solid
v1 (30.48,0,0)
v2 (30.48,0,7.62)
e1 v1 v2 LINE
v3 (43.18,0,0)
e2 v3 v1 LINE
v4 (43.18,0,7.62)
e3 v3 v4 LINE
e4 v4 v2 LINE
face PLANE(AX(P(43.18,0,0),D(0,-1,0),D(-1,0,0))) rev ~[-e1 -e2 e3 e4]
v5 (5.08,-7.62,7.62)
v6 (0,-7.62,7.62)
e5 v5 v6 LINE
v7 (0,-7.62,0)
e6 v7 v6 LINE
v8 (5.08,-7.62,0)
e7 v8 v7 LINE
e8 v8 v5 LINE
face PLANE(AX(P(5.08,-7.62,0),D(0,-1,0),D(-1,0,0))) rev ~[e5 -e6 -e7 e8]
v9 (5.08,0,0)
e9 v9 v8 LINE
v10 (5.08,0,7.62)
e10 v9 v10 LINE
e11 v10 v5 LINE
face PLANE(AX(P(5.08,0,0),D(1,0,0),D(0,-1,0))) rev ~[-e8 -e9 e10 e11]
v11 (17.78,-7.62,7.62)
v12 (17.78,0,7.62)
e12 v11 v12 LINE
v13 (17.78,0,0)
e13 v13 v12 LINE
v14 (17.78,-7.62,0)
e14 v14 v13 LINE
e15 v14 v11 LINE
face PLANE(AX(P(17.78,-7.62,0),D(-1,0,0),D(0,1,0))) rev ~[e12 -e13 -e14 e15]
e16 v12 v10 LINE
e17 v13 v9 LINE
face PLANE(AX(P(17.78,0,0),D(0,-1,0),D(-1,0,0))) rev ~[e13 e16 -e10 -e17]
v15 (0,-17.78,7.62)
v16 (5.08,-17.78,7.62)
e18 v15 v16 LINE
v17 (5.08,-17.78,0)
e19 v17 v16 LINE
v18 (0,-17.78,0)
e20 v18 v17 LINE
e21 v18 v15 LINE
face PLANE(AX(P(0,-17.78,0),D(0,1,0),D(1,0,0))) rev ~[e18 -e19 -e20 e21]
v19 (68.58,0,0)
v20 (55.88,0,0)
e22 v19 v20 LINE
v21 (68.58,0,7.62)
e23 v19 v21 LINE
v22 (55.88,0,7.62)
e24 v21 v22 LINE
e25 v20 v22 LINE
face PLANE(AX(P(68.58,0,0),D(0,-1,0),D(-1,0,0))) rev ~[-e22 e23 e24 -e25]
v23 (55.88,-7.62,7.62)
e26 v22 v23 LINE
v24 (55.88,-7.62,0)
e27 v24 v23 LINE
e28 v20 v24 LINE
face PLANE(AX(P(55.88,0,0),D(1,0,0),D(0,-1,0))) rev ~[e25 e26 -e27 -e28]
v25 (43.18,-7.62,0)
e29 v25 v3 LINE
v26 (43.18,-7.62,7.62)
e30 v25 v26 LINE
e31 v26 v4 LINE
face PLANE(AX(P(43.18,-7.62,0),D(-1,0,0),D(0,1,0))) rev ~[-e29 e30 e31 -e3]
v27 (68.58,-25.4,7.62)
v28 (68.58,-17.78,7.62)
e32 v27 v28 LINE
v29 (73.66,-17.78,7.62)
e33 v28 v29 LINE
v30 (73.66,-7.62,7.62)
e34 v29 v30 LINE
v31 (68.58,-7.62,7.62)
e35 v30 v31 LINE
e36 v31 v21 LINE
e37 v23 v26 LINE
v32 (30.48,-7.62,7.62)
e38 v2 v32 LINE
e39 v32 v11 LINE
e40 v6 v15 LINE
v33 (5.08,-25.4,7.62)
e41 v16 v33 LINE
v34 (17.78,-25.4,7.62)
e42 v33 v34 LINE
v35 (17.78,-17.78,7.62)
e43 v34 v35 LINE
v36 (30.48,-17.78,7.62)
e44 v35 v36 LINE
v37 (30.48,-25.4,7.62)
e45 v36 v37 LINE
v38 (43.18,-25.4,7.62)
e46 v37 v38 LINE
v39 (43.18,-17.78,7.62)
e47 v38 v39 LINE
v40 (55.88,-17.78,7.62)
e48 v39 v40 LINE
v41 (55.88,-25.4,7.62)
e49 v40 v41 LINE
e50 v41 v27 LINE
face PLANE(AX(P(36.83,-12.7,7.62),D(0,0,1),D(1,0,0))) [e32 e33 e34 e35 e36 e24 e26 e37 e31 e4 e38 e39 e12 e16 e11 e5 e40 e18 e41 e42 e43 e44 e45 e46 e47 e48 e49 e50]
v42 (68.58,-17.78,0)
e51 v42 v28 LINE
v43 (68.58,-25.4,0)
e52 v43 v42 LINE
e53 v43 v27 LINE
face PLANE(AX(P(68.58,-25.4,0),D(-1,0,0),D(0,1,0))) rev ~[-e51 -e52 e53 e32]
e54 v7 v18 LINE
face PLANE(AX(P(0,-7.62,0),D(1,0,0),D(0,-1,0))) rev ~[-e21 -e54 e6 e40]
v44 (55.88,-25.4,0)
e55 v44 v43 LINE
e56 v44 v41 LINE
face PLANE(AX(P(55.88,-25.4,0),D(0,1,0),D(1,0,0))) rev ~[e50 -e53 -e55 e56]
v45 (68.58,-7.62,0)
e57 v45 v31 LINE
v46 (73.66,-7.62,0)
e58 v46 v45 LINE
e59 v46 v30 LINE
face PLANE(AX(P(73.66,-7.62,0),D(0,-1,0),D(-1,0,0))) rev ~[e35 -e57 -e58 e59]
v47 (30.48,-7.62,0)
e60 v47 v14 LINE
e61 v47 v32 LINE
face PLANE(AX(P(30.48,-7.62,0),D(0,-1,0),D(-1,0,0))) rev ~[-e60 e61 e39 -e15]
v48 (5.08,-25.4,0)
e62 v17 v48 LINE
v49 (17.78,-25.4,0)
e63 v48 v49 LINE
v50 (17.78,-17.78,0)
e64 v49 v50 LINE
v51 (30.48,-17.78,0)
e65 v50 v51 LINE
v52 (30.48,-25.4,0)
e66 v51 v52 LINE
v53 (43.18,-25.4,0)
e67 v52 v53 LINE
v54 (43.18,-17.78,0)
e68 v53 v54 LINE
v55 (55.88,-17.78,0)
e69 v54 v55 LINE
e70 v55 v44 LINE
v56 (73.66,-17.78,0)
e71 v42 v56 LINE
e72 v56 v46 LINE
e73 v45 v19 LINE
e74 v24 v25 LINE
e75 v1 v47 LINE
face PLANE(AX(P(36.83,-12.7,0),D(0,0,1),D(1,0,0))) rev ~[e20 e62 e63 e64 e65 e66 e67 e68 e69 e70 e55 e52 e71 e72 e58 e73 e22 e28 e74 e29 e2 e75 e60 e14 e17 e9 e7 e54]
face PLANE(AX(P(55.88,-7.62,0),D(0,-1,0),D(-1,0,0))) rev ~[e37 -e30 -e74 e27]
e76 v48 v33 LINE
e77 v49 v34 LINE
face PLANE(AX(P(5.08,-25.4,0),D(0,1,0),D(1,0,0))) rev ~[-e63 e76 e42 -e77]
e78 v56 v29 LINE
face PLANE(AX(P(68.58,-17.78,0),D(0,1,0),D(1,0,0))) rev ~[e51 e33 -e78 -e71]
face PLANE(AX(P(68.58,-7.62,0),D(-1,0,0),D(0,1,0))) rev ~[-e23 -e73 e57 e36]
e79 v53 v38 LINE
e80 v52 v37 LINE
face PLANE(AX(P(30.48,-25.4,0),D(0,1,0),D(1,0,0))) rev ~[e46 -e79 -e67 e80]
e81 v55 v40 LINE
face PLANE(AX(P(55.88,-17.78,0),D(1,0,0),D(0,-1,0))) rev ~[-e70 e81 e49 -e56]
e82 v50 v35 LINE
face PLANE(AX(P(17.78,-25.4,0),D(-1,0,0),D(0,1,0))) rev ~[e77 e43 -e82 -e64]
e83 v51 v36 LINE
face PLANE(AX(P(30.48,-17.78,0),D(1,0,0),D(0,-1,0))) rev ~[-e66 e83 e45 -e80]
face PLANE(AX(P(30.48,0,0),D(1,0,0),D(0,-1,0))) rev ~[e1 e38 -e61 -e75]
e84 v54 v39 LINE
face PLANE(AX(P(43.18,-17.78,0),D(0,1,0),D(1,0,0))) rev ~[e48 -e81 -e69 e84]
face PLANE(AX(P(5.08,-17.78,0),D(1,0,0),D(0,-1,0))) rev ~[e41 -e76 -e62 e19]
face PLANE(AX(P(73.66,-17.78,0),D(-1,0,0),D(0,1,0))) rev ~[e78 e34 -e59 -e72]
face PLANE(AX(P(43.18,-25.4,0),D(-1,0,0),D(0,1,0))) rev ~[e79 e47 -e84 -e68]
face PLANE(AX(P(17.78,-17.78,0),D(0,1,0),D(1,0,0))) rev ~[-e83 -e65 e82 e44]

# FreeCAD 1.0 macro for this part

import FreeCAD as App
import Part
import Sketcher
from FreeCAD import Vector
Q = App.Units.Quantity

doc = App.newDocument("Part")
params = doc.addObject("Spreadsheet::Sheet", "Params")
for row, (alias, value) in enumerate([
    ("sketch1_width", "0.5 in"),
    ("sketch1_width2", "0.2 in"),
    ("sketch1_height", "0.3 in"),
    ("sketch1_height2", "0.4 in"),
    ("pad1_length", "0.3 in"),
], start=1):
    params.set(f"A{row}", alias)
    params.set(f"B{row}", "=" + value)
    params.setAlias(f"B{row}", alias)

body = doc.addObject("PartDesign::Body", "Body")

# Sketch on XY plane
sketch1 = body.newObject("Sketcher::SketchObject", "Sketch")
sketch1.AttachmentSupport = (doc.getObject("XY_Plane"), [""])
sketch1.MapMode = "FlatFace"
sketch1.addGeometry([
    Part.LineSegment(Vector(18, 0, 0), Vector(5, 0, 0)),  # 0
    Part.LineSegment(Vector(5, 0, 0), Vector(5, -8, 0)),  # 1
    Part.LineSegment(Vector(5, -8, 0), Vector(0, -8, 0)),  # 2
    Part.LineSegment(Vector(0, -8, 0), Vector(0, -18, 0)),  # 3
    Part.LineSegment(Vector(0, -18, 0), Vector(5, -18, 0)),  # 4
    Part.LineSegment(Vector(5, -18, 0), Vector(5, -25, 0)),  # 5
    Part.LineSegment(Vector(5, -25, 0), Vector(18, -25, 0)),  # 6
    Part.LineSegment(Vector(18, -25, 0), Vector(18, -18, 0)),  # 7
    Part.LineSegment(Vector(18, -18, 0), Vector(30, -18, 0)),  # 8
    Part.LineSegment(Vector(30, -18, 0), Vector(30, -25, 0)),  # 9
    Part.LineSegment(Vector(30, -25, 0), Vector(43, -25, 0)),  # 10
    Part.LineSegment(Vector(43, -25, 0), Vector(43, -18, 0)),  # 11
    Part.LineSegment(Vector(43, -18, 0), Vector(56, -18, 0)),  # 12
    Part.LineSegment(Vector(56, -18, 0), Vector(56, -25, 0)),  # 13
    Part.LineSegment(Vector(56, -25, 0), Vector(69, -25, 0)),  # 14
    Part.LineSegment(Vector(69, -25, 0), Vector(69, -18, 0)),  # 15
    Part.LineSegment(Vector(69, -18, 0), Vector(74, -18, 0)),  # 16
    Part.LineSegment(Vector(74, -18, 0), Vector(74, -8, 0)),  # 17
    Part.LineSegment(Vector(74, -8, 0), Vector(69, -8, 0)),  # 18
    Part.LineSegment(Vector(69, -8, 0), Vector(69, 0, 0)),  # 19
    Part.LineSegment(Vector(69, 0, 0), Vector(56, 0, 0)),  # 20
    Part.LineSegment(Vector(56, 0, 0), Vector(56, -8, 0)),  # 21
    Part.LineSegment(Vector(56, -8, 0), Vector(43, -8, 0)),  # 22
    Part.LineSegment(Vector(43, -8, 0), Vector(43, 0, 0)),  # 23
    Part.LineSegment(Vector(43, 0, 0), Vector(30, 0, 0)),  # 24
    Part.LineSegment(Vector(30, 0, 0), Vector(30, -8, 0)),  # 25
    Part.LineSegment(Vector(30, -8, 0), Vector(18, -8, 0)),  # 26
    Part.LineSegment(Vector(18, -8, 0), Vector(18, 0, 0)),  # 27
], False)
sketch1.addConstraint([
    Sketcher.Constraint("Coincident", 0, 2, 1, 1),
    Sketcher.Constraint("Coincident", 1, 2, 2, 1),
    Sketcher.Constraint("Coincident", 2, 2, 3, 1),
    Sketcher.Constraint("Coincident", 3, 2, 4, 1),
    Sketcher.Constraint("Coincident", 4, 2, 5, 1),
    Sketcher.Constraint("Coincident", 5, 2, 6, 1),
    Sketcher.Constraint("Coincident", 6, 2, 7, 1),
    Sketcher.Constraint("Coincident", 7, 2, 8, 1),
    Sketcher.Constraint("Coincident", 8, 2, 9, 1),
    Sketcher.Constraint("Coincident", 9, 2, 10, 1),
    Sketcher.Constraint("Coincident", 10, 2, 11, 1),
    Sketcher.Constraint("Coincident", 11, 2, 12, 1),
    Sketcher.Constraint("Coincident", 12, 2, 13, 1),
    Sketcher.Constraint("Coincident", 13, 2, 14, 1),
    Sketcher.Constraint("Coincident", 14, 2, 15, 1),
    Sketcher.Constraint("Coincident", 15, 2, 16, 1),
    Sketcher.Constraint("Coincident", 16, 2, 17, 1),
    Sketcher.Constraint("Coincident", 17, 2, 18, 1),
    Sketcher.Constraint("Coincident", 18, 2, 19, 1),
    Sketcher.Constraint("Coincident", 19, 2, 20, 1),
    Sketcher.Constraint("Coincident", 20, 2, 21, 1),
    Sketcher.Constraint("Coincident", 21, 2, 22, 1),
    Sketcher.Constraint("Coincident", 22, 2, 23, 1),
    Sketcher.Constraint("Coincident", 23, 2, 24, 1),
    Sketcher.Constraint("Coincident", 24, 2, 25, 1),
    Sketcher.Constraint("Coincident", 25, 2, 26, 1),
    Sketcher.Constraint("Coincident", 26, 2, 27, 1),
    Sketcher.Constraint("Coincident", 27, 2, 0, 1),
    Sketcher.Constraint("Horizontal", 0),
    Sketcher.Constraint("Vertical", 1),
    Sketcher.Constraint("Horizontal", 2),
    Sketcher.Constraint("Vertical", 3),
    Sketcher.Constraint("Horizontal", 4),
    Sketcher.Constraint("Vertical", 5),
    Sketcher.Constraint("Horizontal", 6),
    Sketcher.Constraint("Vertical", 7),
    Sketcher.Constraint("Horizontal", 8),
    Sketcher.Constraint("Vertical", 9),
    Sketcher.Constraint("Horizontal", 10),
    Sketcher.Constraint("Vertical", 11),
    Sketcher.Constraint("Horizontal", 12),
    Sketcher.Constraint("Vertical", 13),
    Sketcher.Constraint("Horizontal", 14),
    Sketcher.Constraint("Vertical", 15),
    Sketcher.Constraint("Horizontal", 16),
    Sketcher.Constraint("Vertical", 17),
    Sketcher.Constraint("Horizontal", 18),
    Sketcher.Constraint("Vertical", 19),
    Sketcher.Constraint("Horizontal", 20),
    Sketcher.Constraint("Vertical", 21),
    Sketcher.Constraint("Horizontal", 22),
    Sketcher.Constraint("Vertical", 23),
    Sketcher.Constraint("Horizontal", 24),
    Sketcher.Constraint("Vertical", 25),
    Sketcher.Constraint("Horizontal", 26),
    Sketcher.Constraint("Vertical", 27),
    Sketcher.Constraint("PointOnObject", 0, 2, -1),
    Sketcher.Constraint("PointOnObject", 2, 2, -2),
    Sketcher.Constraint("PointOnObject", 19, 2, -1),
    Sketcher.Constraint("PointOnObject", 23, 2, -1),
    Sketcher.Constraint("Horizontal", 4, 2, 7, 2),
    Sketcher.Constraint("Horizontal", 6, 2, 9, 2),
    Sketcher.Constraint("Horizontal", 8, 2, 11, 2),
    Sketcher.Constraint("Horizontal", 10, 2, 13, 2),
    Sketcher.Constraint("Horizontal", 12, 2, 15, 2),
    Sketcher.Constraint("Horizontal", 2, 2, 17, 2),
    Sketcher.Constraint("Horizontal", 18, 2, 21, 2),
    Sketcher.Constraint("Horizontal", 22, 2, 25, 2),
    Sketcher.Constraint("Vertical", 1, 2, 4, 2),
    Sketcher.Constraint("Vertical", 15, 2, 18, 2),
    Sketcher.Constraint("Vertical", 13, 2, 20, 2),
    Sketcher.Constraint("Vertical", 11, 2, 22, 2),
    Sketcher.Constraint("Vertical", 9, 2, 24, 2),
    Sketcher.Constraint("Vertical", 7, 2, 26, 2),
    Sketcher.Constraint("Equal", 6, 8),
    Sketcher.Constraint("Equal", 8, 10),
    Sketcher.Constraint("Equal", 10, 12),
    Sketcher.Constraint("Equal", 12, 14),
    Sketcher.Constraint("Equal", 4, 16),
    Sketcher.Constraint("Equal", 1, 5),
    Sketcher.Constraint("DistanceX", 0, 2, 0, 1, Q("0.5 in")),
    Sketcher.Constraint("DistanceX", 2, 2, 2, 1, Q("0.2 in")),
    Sketcher.Constraint("DistanceY", 1, 2, 1, 1, Q("0.3 in")),
    Sketcher.Constraint("DistanceY", 3, 2, 3, 1, Q("0.4 in")),
])
sketch1.setExpression("Constraints[80]", "Params.sketch1_width")
sketch1.setExpression("Constraints[81]", "Params.sketch1_width2")
sketch1.setExpression("Constraints[82]", "Params.sketch1_height")
sketch1.setExpression("Constraints[83]", "Params.sketch1_height2")
pad1 = body.newObject("PartDesign::Pad", "Pad")
pad1.Profile = sketch1
pad1.setExpression("Length", "Params.pad1_length")

doc.recompute()
